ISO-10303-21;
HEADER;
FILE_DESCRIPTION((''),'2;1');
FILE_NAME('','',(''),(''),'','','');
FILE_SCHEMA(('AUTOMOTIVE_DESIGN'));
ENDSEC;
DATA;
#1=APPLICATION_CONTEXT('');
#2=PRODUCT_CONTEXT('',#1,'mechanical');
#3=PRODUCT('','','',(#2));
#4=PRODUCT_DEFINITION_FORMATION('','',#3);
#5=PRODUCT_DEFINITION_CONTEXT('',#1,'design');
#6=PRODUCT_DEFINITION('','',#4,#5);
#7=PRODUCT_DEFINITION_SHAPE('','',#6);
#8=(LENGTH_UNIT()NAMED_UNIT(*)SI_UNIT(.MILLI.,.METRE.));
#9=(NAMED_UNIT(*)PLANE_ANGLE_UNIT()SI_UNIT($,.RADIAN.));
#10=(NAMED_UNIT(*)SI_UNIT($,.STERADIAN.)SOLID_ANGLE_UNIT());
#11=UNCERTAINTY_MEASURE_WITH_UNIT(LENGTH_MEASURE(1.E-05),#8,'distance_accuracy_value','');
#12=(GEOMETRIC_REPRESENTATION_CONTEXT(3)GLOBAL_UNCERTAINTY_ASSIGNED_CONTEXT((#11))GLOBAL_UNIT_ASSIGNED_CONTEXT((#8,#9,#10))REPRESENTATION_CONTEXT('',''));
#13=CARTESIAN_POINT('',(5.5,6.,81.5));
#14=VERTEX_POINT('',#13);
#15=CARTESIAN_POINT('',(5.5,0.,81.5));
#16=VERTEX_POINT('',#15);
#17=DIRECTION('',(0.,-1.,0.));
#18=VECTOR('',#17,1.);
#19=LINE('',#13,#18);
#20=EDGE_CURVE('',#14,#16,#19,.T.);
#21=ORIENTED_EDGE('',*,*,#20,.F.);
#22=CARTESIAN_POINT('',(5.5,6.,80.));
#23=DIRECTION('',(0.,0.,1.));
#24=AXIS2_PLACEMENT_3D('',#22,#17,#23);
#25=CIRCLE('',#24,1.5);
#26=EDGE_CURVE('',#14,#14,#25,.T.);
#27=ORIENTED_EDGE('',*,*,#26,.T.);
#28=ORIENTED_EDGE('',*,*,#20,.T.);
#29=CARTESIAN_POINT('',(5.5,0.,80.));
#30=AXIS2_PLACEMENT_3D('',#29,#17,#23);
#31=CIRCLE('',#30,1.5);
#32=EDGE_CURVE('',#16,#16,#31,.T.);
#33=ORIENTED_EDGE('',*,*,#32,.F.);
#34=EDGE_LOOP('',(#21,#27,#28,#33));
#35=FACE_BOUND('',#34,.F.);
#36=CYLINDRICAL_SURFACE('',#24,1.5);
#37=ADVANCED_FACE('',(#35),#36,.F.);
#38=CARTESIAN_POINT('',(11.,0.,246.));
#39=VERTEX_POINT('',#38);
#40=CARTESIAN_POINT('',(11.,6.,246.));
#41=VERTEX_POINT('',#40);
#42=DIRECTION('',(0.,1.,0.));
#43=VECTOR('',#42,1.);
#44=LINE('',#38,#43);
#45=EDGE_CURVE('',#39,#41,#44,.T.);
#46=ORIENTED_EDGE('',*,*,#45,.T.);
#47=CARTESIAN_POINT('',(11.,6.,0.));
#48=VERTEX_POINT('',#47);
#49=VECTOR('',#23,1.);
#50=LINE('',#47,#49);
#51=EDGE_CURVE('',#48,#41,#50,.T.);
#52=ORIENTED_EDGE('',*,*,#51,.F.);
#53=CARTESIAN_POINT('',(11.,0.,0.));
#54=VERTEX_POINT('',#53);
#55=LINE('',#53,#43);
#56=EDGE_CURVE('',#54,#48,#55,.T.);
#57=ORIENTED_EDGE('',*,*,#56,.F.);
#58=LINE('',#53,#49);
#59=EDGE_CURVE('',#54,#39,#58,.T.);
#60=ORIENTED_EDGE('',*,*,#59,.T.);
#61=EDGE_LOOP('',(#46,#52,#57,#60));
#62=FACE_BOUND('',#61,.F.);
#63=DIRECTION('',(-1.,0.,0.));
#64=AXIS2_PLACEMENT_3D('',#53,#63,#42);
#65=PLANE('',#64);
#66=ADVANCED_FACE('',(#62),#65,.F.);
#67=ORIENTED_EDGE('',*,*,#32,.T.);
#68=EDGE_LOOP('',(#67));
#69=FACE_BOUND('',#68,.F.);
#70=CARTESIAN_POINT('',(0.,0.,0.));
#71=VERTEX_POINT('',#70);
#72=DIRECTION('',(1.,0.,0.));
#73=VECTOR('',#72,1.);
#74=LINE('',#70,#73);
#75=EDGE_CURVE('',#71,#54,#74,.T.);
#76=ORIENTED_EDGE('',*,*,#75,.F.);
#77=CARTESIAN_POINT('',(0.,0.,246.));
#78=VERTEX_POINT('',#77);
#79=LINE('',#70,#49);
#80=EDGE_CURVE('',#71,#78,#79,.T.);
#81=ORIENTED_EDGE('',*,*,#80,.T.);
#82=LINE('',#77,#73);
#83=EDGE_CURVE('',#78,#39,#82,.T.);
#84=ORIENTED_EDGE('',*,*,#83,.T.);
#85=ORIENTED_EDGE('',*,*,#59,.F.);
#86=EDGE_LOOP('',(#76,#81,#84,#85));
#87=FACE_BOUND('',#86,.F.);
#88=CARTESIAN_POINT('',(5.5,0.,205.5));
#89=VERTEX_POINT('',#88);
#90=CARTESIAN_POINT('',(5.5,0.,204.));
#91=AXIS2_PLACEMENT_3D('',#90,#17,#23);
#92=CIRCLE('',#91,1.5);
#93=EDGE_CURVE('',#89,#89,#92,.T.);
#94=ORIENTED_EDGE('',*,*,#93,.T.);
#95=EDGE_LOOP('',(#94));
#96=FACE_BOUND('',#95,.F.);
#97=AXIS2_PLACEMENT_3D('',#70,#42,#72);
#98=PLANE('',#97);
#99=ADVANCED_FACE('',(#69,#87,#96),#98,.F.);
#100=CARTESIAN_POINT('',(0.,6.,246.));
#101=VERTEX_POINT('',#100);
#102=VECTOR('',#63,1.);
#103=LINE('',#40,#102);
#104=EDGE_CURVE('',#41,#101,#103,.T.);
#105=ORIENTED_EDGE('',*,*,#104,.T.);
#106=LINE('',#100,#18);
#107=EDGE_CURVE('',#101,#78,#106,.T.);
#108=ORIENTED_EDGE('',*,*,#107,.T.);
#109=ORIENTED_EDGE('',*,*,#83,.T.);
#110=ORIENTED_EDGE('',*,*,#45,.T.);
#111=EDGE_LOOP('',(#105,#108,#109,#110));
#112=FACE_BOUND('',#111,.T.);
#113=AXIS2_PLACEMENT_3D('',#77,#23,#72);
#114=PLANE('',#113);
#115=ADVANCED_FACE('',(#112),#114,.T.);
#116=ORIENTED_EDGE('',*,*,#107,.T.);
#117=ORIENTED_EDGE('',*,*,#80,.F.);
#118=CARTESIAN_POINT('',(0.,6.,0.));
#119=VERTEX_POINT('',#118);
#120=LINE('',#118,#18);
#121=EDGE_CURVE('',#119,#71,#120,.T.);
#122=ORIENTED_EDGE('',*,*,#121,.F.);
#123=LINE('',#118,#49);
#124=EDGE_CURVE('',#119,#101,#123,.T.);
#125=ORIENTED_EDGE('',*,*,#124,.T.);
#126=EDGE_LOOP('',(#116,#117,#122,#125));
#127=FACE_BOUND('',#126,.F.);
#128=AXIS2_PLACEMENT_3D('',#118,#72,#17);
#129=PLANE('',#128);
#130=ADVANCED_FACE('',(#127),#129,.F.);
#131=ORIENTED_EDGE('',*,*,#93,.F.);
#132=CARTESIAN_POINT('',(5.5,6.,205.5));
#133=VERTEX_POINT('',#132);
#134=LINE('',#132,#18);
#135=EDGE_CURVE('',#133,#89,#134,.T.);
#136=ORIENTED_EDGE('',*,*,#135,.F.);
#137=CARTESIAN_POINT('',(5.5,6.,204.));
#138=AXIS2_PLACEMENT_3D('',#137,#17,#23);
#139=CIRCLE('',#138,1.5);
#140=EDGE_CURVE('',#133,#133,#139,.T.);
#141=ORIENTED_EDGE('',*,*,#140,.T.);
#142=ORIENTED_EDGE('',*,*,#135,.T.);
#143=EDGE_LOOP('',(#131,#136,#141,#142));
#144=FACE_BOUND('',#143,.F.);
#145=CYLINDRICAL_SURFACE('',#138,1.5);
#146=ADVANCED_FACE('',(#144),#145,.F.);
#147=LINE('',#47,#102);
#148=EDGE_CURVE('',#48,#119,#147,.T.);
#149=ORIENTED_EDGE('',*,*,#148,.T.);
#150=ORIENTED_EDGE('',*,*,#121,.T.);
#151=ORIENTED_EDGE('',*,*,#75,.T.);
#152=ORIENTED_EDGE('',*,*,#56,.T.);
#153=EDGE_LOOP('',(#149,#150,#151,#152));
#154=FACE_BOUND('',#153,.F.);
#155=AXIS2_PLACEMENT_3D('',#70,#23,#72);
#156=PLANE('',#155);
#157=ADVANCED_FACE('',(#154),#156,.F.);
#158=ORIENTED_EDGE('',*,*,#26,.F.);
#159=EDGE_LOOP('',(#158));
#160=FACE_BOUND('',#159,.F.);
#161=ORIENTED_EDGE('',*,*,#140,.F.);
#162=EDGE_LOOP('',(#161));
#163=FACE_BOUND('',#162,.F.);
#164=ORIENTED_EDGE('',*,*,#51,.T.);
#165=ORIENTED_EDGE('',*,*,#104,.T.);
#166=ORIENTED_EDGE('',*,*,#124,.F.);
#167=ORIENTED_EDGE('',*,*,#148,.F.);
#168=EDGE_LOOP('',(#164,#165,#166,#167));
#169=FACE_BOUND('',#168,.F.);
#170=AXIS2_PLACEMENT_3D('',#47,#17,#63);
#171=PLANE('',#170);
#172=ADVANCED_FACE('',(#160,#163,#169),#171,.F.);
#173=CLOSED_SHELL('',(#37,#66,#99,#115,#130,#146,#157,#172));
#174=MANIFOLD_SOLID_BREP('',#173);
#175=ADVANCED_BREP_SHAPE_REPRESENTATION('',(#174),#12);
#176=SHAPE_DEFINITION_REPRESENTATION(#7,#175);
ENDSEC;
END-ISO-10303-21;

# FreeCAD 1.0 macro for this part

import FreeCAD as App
import Part
import Sketcher
Q = App.Units.Quantity

doc = App.newDocument("Part")
body = doc.addObject("PartDesign::Body", "Body")

# Sketch on XY plane
sketch1 = body.newObject("Sketcher::SketchObject", "Sketch")
sketch1.AttachmentSupport = (doc.getObject("XY_Plane"), [""])
sketch1.MapMode = "FlatFace"
sketch1.addGeometry([
    Part.LineSegment(App.Vector(0, 6, 0), App.Vector(0, 0, 0)),
    Part.LineSegment(App.Vector(0, 0, 0), App.Vector(11, 0, 0)),
    Part.LineSegment(App.Vector(11, 0, 0), App.Vector(11, 6, 0)),
    Part.LineSegment(App.Vector(11, 6, 0), App.Vector(0, 6, 0)),
], False)
sketch1.addConstraint([
    Sketcher.Constraint("Coincident", 0, 2, 1, 1),
    Sketcher.Constraint("Coincident", 1, 2, 2, 1),
    Sketcher.Constraint("Coincident", 2, 2, 3, 1),
    Sketcher.Constraint("Coincident", 3, 2, 0, 1),
    Sketcher.Constraint("Vertical", 0),
    Sketcher.Constraint("Horizontal", 1),
    Sketcher.Constraint("Vertical", 2),
    Sketcher.Constraint("Horizontal", 3),
    Sketcher.Constraint("Coincident", 0, 2, -1, 1),
    Sketcher.Constraint("DistanceX", 1, 1, 1, 2, Q("11 mm")),
    Sketcher.Constraint("DistanceY", 0, 2, 0, 1, Q("6 mm")),
])
pad1 = body.newObject("PartDesign::Pad", "Pad")
pad1.Profile = sketch1
pad1.Length = 246

# Sketch on XZ plane
sketch2 = body.newObject("Sketcher::SketchObject", "Sketch001")
sketch2.AttachmentSupport = (doc.getObject("XZ_Plane"), [""])
sketch2.MapMode = "FlatFace"
sketch2.AttachmentOffset = App.Placement(App.Vector(0, 0, -6), App.Rotation())
sketch2.addGeometry([
    Part.Circle(App.Vector(5.5, 204, 0), App.Vector(0, 0, 1), 1.5),
    Part.Circle(App.Vector(5.5, 80, 0), App.Vector(0, 0, 1), 1.5),
], False)
sketch2.addConstraint([
    Sketcher.Constraint("Equal", 0, 1),
    Sketcher.Constraint("Vertical", 0, 3, 1, 3),
    Sketcher.Constraint("Diameter", 0, Q("3 mm")),
    Sketcher.Constraint("DistanceY", -1, 1, 0, 3, Q("204 mm")),
    Sketcher.Constraint("DistanceY", -1, 1, 1, 3, Q("80 mm")),
    Sketcher.Constraint("DistanceX", -1, 1, 0, 3, Q("5.5 mm")),
])
doc.recompute()
hole = body.newObject("PartDesign::Hole", "Hole")
hole.Profile = sketch2
hole.ThreadType = "None"
hole.Diameter = 3
hole.DepthType = "Dimension"
hole.Depth = 8
hole.DrillPoint = "Angled"
hole.DrillPointAngle = 118
hole.Reversed = True

doc.recompute()
